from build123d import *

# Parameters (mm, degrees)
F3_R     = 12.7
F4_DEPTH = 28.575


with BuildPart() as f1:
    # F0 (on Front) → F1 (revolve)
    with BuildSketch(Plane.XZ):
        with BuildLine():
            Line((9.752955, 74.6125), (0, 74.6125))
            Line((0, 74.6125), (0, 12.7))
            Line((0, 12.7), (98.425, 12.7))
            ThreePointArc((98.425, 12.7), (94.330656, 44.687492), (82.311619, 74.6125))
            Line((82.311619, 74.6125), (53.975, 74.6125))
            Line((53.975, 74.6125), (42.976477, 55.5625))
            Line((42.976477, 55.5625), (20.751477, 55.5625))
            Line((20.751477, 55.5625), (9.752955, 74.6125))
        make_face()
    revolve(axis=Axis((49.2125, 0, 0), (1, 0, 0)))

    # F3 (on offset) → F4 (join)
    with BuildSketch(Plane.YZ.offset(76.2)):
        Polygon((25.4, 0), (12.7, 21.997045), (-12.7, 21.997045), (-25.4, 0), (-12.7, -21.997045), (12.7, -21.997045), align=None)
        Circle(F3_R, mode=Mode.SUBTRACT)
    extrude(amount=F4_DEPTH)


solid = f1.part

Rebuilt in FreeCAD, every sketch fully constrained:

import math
import FreeCAD as App
import Part
import Sketcher
Q = App.Units.Quantity


def add_polygon(sketch, points):
    """Adds a closed chain of lines whose ends are joined by coincident constraints."""
    first, n = sketch.GeometryCount, len(points)
    for a, b in zip(points, points[1:] + points[:1]):
        sketch.addGeometry(Part.LineSegment(App.Vector(*a, 0), App.Vector(*b, 0)), False)
    for i in range(n):
        sketch.addConstraint(Sketcher.Constraint("Coincident", first + i, 2, first + (i + 1) % n, 1))

doc = App.newDocument("Part")
params = doc.addObject("Spreadsheet::Sheet", "Params")
for row, (alias, value) in enumerate([
    ("sketch1_radius", "5.0000002 in"),
    ("sketch1_width", "3.875 in"),
    ("sketch1_width2", "0.875 in"),
    ("sketch1_height", "2.4375 in"),
    ("revolution_angle", "360 deg"),
    ("sketch2_diameter", "1 in"),
    ("sketch2_width", "1 in"),
    ("sketch2_length", "1 in"),
    ("pad1_length", "1.125 in"),
], start=1):
    params.set(f"A{row}", alias)
    params.set(f"B{row}", "=" + value)
    params.setAlias(f"B{row}", alias)

body = doc.addObject("PartDesign::Body", "Body")

# Sketch on XZ plane
sketch1 = doc.addObject("Sketcher::SketchObject", "Sketch")
body.addObject(sketch1)
sketch1.AttachmentSupport = (doc.XZ_Plane, [""])
sketch1.MapMode = "FlatFace"
sketch1.addGeometry(Part.LineSegment(App.Vector(9.752955, 74.6125, 0), App.Vector(0, 74.6125, 0)), False)
sketch1.addGeometry(Part.LineSegment(App.Vector(0, 74.6125, 0), App.Vector(0, 12.7, 0)), False)
sketch1.addGeometry(Part.LineSegment(App.Vector(0, 12.7, 0), App.Vector(98.425, 12.7, 0)), False)
sketch1.addGeometry(Part.ArcOfCircle(Part.Circle(App.Vector(-28.575005, 12.699998, 0), App.Vector(0, 0, 1), 127.000005), math.radians(0.000001), math.radians(29.176396)), False)
sketch1.addGeometry(Part.LineSegment(App.Vector(82.311619, 74.6125, 0), App.Vector(53.975, 74.6125, 0)), False)
sketch1.addGeometry(Part.LineSegment(App.Vector(53.975, 74.6125, 0), App.Vector(42.976477, 55.5625, 0)), False)
sketch1.addGeometry(Part.LineSegment(App.Vector(42.976477, 55.5625, 0), App.Vector(20.751477, 55.5625, 0)), False)
sketch1.addGeometry(Part.LineSegment(App.Vector(20.751477, 55.5625, 0), App.Vector(9.752955, 74.6125, 0)), False)
sketch1.addConstraint(Sketcher.Constraint("Coincident", 0, 2, 1, 1))
sketch1.addConstraint(Sketcher.Constraint("Coincident", 1, 2, 2, 1))
sketch1.addConstraint(Sketcher.Constraint("Coincident", 2, 2, 3, 1))
sketch1.addConstraint(Sketcher.Constraint("Coincident", 3, 2, 4, 1))
sketch1.addConstraint(Sketcher.Constraint("Coincident", 4, 2, 5, 1))
sketch1.addConstraint(Sketcher.Constraint("Coincident", 5, 2, 6, 1))
sketch1.addConstraint(Sketcher.Constraint("Coincident", 6, 2, 7, 1))
sketch1.addConstraint(Sketcher.Constraint("Coincident", 7, 2, 0, 1))
sketch1.addConstraint(Sketcher.Constraint("Horizontal", 0))
sketch1.addConstraint(Sketcher.Constraint("Vertical", 1))
sketch1.addConstraint(Sketcher.Constraint("Horizontal", 2))
sketch1.addConstraint(Sketcher.Constraint("Horizontal", 4))
sketch1.addConstraint(Sketcher.Constraint("Horizontal", 6))
sketch1.addConstraint(Sketcher.Constraint("PointOnObject", 0, 2, -2))
sketch1.addConstraint(Sketcher.Constraint("Horizontal", 3, 3, 1, 2))
sketch1.addConstraint(Sketcher.Constraint("Horizontal", 0, 2, 3, 2))
sketch1.addConstraint(Sketcher.Constraint("Equal", 5, 7))
sketch1.addConstraint(Sketcher.Constraint("Radius", 3, Q("5.0000002 in")))
sketch1.addConstraint(Sketcher.Constraint("Angle", 5, Q("-120.000001 deg")))
sketch1.addConstraint(Sketcher.Constraint("DistanceY", -1, 1, 3, 3, Q("0.4999999 in")))
sketch1.addConstraint(Sketcher.Constraint("DistanceX", 2, 1, 2, 2, Q("3.875 in")))
sketch1.addConstraint(Sketcher.Constraint("DistanceX", 6, 2, 6, 1, Q("0.875 in")))
sketch1.addConstraint(Sketcher.Constraint("DistanceY", 1, 2, 1, 1, Q("2.4375 in")))
sketch1.addConstraint(Sketcher.Constraint("DistanceX", 4, 2, 2, 2, Q("1.75 in")))
sketch1.addConstraint(Sketcher.Constraint("DistanceY", 5, 2, 4, 2, Q("0.75 in")))
sketch1.setExpression("Constraints[17]", "Params.sketch1_radius")
sketch1.setExpression("Constraints[20]", "Params.sketch1_width")
sketch1.setExpression("Constraints[21]", "Params.sketch1_width2")
sketch1.setExpression("Constraints[22]", "Params.sketch1_height")
revolution = doc.addObject("PartDesign::Revolution", "Revolution")
body.addObject(revolution)
revolution.Profile = sketch1
revolution.ReferenceAxis = (sketch1, ["H_Axis"])
revolution.setExpression("Angle", "Params.revolution_angle")

# Sketch on YZ plane
sketch2 = doc.addObject("Sketcher::SketchObject", "Sketch001")
body.addObject(sketch2)
sketch2.AttachmentSupport = (doc.YZ_Plane, [""])
sketch2.MapMode = "FlatFace"
sketch2.AttachmentOffset = App.Placement(App.Vector(0, 0, 3 * 25.4), App.Rotation())
add_polygon(sketch2, [(25.4, 0), (12.7, 21.997045), (-12.7, 21.997045), (-25.4, 0), (-12.7, -21.997045), (12.7, -21.997045)])  # lines 0-5
sketch2.addGeometry(Part.Circle(App.Vector(0, 0, 0), App.Vector(0, 0, 1), 12.7), False)  # 6
sketch2.addConstraint(Sketcher.Constraint("Horizontal", 1))
sketch2.addConstraint(Sketcher.Constraint("Horizontal", 4))
sketch2.addConstraint(Sketcher.Constraint("Coincident", 6, 3, -1, 1))
sketch2.addConstraint(Sketcher.Constraint("Symmetric", 0, 2, 3, 2, -1, 1))
sketch2.addConstraint(Sketcher.Constraint("Symmetric", 2, 2, 5, 2, -1, 1))
sketch2.addConstraint(Sketcher.Constraint("PointOnObject", 2, 2, -1))
sketch2.addConstraint(Sketcher.Constraint("Parallel", 2, 5))
sketch2.addConstraint(Sketcher.Constraint("Vertical", 1, 2, 3, 2))
sketch2.addConstraint(Sketcher.Constraint("Diameter", 6, Q("1 in")))
sketch2.addConstraint(Sketcher.Constraint("DistanceX", 1, 2, 1, 1, Q("1 in")))
sketch2.addConstraint(Sketcher.Constraint("Distance", 0, Q("1 in")))
sketch2.addConstraint(Sketcher.Constraint("DistanceX", 2, 2, -1, 1, Q("1 in")))
sketch2.setExpression("Constraints[14]", "Params.sketch2_diameter")
sketch2.setExpression("Constraints[15]", "Params.sketch2_width")
sketch2.setExpression("Constraints[16]", "Params.sketch2_length")
pad1 = doc.addObject("PartDesign::Pad", "Pad")
body.addObject(pad1)
pad1.Profile = sketch2
pad1.setExpression("Length", "Params.pad1_length")

doc.recompute()
